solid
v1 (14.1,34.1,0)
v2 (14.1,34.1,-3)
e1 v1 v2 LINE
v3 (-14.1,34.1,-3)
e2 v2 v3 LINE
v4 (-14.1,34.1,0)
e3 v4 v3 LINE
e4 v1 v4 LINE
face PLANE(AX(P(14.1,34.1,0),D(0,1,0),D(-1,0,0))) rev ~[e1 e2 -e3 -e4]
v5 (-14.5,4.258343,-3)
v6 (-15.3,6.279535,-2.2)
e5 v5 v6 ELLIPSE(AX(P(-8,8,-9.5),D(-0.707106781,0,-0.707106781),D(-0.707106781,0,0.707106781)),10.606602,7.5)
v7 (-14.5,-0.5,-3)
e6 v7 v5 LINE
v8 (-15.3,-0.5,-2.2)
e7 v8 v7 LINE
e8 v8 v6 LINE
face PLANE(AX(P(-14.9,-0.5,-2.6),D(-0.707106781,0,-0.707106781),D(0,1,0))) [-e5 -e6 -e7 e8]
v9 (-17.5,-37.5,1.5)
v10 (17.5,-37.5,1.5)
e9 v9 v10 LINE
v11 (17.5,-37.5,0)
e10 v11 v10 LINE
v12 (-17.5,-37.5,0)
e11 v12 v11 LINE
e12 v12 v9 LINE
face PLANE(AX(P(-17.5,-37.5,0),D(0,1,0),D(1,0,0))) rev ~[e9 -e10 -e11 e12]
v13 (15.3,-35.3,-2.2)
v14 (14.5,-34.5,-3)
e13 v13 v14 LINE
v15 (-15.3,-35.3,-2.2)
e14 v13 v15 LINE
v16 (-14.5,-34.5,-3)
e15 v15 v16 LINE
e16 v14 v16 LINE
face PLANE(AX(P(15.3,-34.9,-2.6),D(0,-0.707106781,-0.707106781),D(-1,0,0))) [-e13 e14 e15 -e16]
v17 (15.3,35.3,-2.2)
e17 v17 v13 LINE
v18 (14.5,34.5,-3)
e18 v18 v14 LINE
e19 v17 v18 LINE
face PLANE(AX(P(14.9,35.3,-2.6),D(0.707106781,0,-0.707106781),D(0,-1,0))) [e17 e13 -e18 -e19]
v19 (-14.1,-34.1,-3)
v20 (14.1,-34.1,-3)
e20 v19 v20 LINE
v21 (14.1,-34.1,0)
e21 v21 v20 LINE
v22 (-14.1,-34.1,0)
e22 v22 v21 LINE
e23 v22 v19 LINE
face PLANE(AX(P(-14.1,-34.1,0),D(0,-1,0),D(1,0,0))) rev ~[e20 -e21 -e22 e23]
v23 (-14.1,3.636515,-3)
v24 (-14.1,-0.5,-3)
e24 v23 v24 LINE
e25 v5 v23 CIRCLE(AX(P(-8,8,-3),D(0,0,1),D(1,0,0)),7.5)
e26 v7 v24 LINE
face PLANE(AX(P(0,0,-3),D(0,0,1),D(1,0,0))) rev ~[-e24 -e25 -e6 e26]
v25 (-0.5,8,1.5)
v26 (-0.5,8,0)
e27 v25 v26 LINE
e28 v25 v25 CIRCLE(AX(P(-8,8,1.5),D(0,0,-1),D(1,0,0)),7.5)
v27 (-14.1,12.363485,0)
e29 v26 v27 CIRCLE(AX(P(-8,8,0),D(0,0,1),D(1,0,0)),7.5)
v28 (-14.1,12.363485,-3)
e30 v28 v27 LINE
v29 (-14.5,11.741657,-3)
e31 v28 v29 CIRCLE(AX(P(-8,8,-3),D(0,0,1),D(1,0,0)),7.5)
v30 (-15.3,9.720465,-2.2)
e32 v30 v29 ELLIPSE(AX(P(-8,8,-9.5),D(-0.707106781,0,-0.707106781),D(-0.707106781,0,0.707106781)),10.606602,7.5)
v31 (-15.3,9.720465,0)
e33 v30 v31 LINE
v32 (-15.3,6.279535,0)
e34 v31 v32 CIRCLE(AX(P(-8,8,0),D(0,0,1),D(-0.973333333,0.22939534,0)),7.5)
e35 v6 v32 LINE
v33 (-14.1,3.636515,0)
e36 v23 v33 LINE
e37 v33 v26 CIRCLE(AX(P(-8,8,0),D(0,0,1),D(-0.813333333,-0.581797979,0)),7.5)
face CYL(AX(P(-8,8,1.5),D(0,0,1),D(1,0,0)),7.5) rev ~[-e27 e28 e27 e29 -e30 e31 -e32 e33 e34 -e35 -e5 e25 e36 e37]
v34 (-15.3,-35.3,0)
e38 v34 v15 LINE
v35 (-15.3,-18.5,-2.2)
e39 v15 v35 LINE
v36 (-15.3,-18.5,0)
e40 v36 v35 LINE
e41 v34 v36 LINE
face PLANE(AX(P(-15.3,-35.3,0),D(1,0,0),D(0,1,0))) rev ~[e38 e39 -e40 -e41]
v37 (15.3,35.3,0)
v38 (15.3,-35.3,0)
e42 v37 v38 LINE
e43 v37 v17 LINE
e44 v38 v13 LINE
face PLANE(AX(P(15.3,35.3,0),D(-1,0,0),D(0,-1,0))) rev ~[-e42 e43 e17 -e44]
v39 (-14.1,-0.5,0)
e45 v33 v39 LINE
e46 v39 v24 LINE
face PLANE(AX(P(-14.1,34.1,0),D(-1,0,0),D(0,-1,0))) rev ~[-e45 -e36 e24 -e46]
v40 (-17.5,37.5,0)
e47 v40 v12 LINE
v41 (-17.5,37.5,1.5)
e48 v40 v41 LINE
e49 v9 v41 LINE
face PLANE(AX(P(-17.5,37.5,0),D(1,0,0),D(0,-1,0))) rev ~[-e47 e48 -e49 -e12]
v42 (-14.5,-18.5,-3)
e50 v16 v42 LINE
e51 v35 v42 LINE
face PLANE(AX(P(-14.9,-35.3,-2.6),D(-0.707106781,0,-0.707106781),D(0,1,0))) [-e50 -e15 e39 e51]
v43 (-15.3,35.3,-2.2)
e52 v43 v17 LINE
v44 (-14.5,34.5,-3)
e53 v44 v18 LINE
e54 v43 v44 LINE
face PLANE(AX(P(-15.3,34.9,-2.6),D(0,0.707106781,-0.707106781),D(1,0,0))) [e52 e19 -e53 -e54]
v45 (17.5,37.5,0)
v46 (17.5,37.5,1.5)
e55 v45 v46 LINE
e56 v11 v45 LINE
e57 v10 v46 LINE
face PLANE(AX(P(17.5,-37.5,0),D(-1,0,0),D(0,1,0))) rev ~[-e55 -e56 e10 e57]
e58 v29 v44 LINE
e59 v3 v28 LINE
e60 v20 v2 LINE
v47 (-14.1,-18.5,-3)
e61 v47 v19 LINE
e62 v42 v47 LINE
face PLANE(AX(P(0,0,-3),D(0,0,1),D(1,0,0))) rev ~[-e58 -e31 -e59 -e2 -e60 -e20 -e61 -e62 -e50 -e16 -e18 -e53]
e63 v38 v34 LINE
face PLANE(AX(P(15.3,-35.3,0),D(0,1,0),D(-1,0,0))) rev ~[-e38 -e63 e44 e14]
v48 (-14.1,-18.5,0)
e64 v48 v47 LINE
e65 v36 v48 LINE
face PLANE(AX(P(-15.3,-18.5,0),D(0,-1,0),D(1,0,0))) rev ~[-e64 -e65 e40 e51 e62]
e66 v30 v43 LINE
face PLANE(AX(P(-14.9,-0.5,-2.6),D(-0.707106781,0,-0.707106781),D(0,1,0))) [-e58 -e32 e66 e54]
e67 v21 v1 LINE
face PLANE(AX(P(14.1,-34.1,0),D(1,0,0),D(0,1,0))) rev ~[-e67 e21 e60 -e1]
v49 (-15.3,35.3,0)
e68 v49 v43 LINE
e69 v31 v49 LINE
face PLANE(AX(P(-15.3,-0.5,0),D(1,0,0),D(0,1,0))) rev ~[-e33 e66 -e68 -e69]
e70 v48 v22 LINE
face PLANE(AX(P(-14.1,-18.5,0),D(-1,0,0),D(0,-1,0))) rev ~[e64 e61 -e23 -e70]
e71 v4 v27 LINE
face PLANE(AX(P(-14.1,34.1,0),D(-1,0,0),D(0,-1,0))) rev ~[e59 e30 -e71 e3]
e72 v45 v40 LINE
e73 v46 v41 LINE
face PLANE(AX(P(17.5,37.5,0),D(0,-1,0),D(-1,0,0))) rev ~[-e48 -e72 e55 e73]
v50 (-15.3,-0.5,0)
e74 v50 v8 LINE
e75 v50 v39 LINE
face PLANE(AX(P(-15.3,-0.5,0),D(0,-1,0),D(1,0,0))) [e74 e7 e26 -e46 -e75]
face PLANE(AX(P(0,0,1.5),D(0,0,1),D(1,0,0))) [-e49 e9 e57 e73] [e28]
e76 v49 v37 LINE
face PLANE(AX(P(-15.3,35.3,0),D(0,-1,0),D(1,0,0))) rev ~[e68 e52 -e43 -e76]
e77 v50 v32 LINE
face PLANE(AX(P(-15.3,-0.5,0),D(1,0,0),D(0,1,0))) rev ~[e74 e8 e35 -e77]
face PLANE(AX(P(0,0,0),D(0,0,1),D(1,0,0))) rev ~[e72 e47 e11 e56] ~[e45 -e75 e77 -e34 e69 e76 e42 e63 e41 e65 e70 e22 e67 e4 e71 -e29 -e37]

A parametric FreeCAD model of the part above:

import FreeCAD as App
import Part
import Sketcher


def edges_at(feature, points):
    """Names of the edges that pass closest to the given points."""
    edges = feature.Shape.Edges
    near = lambda p: min(range(len(edges)), key=lambda i: edges[i].distToShape(Part.Vertex(*p))[0])
    return sorted({f"Edge{near(p) + 1}" for p in points})


def add_polygon(sketch, points):
    """Adds a closed chain of lines whose ends are joined by coincident constraints."""
    first, n = sketch.GeometryCount, len(points)
    for a, b in zip(points, points[1:] + points[:1]):
        sketch.addGeometry(Part.LineSegment(App.Vector(*a, 0), App.Vector(*b, 0)), False)
    for i in range(n):
        sketch.addConstraint(Sketcher.Constraint("Coincident", first + i, 2, first + (i + 1) % n, 1))

doc = App.newDocument("Part")
params = doc.addObject("Spreadsheet::Sheet", "Params")
for row, (alias, value) in enumerate([
    ("sketch1_width", "1.2 mm"),
    ("sketch1_width2", "30.6 mm"),
    ("sketch1_height", "16.8 mm"),
    ("sketch1_height2", "70.6 mm"),
    ("sketch1_height3", "35.8 mm"),
    ("pad1_length", "3 mm"),
    ("chamfer_size", "0.8 mm"),
    ("sketch2_width", "35 mm"),
    ("sketch2_height", "75 mm"),
    ("pad2_length", "1.5 mm"),
    ("sketch3_diameter", "15 mm"),
], start=1):
    params.set(f"A{row}", alias)
    params.set(f"B{row}", "=" + value)
    params.setAlias(f"B{row}", alias)

body = doc.addObject("PartDesign::Body", "Body")

sketch1 = doc.addObject("Sketcher::SketchObject", "Sketch")
body.addObject(sketch1)
sketch1.AttachmentSupport = (doc.XY_Plane, [""])
sketch1.MapMode = "FlatFace"
add_polygon(sketch1, [(-14.1, -18.5), (-15.3, -18.5), (-15.3, -35.3), (15.3, -35.3), (15.3, 35.3), (-15.3, 35.3), (-15.3, -0.5), (-14.1, -0.5), (-14.1, 34.1), (14.1, 34.1), (14.1, -34.1), (-14.1, -34.1)])
sketch1.addConstraint([
    Sketcher.Constraint("Horizontal", 0),
    Sketcher.Constraint("Vertical", 1),
    Sketcher.Constraint("Horizontal", 2),
    Sketcher.Constraint("Vertical", 3),
    Sketcher.Constraint("Horizontal", 4),
    Sketcher.Constraint("Vertical", 5),
    Sketcher.Constraint("Horizontal", 6),
    Sketcher.Constraint("Vertical", 7),
    Sketcher.Constraint("Horizontal", 8),
    Sketcher.Constraint("Vertical", 9),
    Sketcher.Constraint("Horizontal", 10),
    Sketcher.Constraint("Vertical", 11),
    Sketcher.Constraint("Symmetric", 1, 2, 3, 2, -1, 1),
    Sketcher.Constraint("Symmetric", 7, 2, 9, 2, -1, 1),
    Sketcher.Constraint("Vertical", 1, 2, 4, 2),
    Sketcher.Constraint("Vertical", 7, 2, 10, 2),
    Sketcher.Constraint("DistanceX", 0, 2, 0, 1, 1.2),
    Sketcher.Constraint("DistanceY", 7, 2, 4, 2, 1.2),
    Sketcher.Constraint("DistanceX", 2, 1, 2, 2, 30.6),
    Sketcher.Constraint("DistanceY", 1, 2, 1, 1, 16.8),
    Sketcher.Constraint("DistanceY", 3, 1, 3, 2, 70.6),
    Sketcher.Constraint("DistanceY", 5, 2, 5, 1, 35.8),
])
sketch1.setExpression("Constraints[28]", "Params.sketch1_width")
sketch1.setExpression("Constraints[30]", "Params.sketch1_width2")
sketch1.setExpression("Constraints[31]", "Params.sketch1_height")
sketch1.setExpression("Constraints[32]", "Params.sketch1_height2")
sketch1.setExpression("Constraints[33]", "Params.sketch1_height3")
pad1 = doc.addObject("PartDesign::Pad", "Pad")
body.addObject(pad1)
pad1.Profile = sketch1
pad1.setExpression("Length", "Params.pad1_length")
pad1.Reversed = True
doc.recompute()

chamfer = doc.addObject("PartDesign::Chamfer", "Chamfer")
body.addObject(chamfer)
chamfer.Base = (pad1, edges_at(pad1, [
    (-15.3, 17.4, -3),
    (-15.3, -26.9, -3),
    (0, -35.3, -3),
    (15.3, 0, -3),
    (0, 35.3, -3),
]))
chamfer.setExpression("Size", "Params.chamfer_size")

sketch2 = doc.addObject("Sketcher::SketchObject", "Sketch001")
body.addObject(sketch2)
sketch2.AttachmentSupport = (doc.XY_Plane, [""])
sketch2.MapMode = "FlatFace"
add_polygon(sketch2, [(-18, 38), (-18, -38), (18, -38), (18, 38)])
sketch2.addConstraint([
    Sketcher.Constraint("Vertical", 0),
    Sketcher.Constraint("Horizontal", 1),
    Sketcher.Constraint("Vertical", 2),
    Sketcher.Constraint("Horizontal", 3),
    Sketcher.Constraint("Symmetric", 0, 2, 2, 2, -1, 1),
    Sketcher.Constraint("DistanceX", 1, 1, 1, 2, 35.0),
    Sketcher.Constraint("DistanceY", 0, 2, 0, 1, 75.0),
])
sketch2.setExpression("Constraints[9]", "Params.sketch2_width")
sketch2.setExpression("Constraints[10]", "Params.sketch2_height")
pad2 = doc.addObject("PartDesign::Pad", "Pad001")
body.addObject(pad2)
pad2.Profile = sketch2
pad2.setExpression("Length", "Params.pad2_length")

sketch3 = doc.addObject("Sketcher::SketchObject", "Sketch002")
body.addObject(sketch3)
sketch3.AttachmentSupport = (doc.XY_Plane, [""])
sketch3.MapMode = "FlatFace"
sketch3.AttachmentOffset = App.Placement(App.Vector(0, 0, 1.5), App.Rotation())
sketch3.addGeometry(Part.Circle(App.Vector(-8, 8, 0), App.Vector(0, 0, 1), 8), False)
sketch3.addConstraint([
    Sketcher.Constraint("Diameter", 0, 15.0),
    Sketcher.Constraint("DistanceX", 0, 3, -1, 1, 8.0),
    Sketcher.Constraint("DistanceY", -1, 1, 0, 3, 8.0),
])
sketch3.setExpression("Constraints[0]", "Params.sketch3_diameter")
pocket1 = doc.addObject("PartDesign::Pocket", "Pocket")
body.addObject(pocket1)
pocket1.Profile = sketch3
pocket1.Type = "ThroughAll"

doc.recompute()
